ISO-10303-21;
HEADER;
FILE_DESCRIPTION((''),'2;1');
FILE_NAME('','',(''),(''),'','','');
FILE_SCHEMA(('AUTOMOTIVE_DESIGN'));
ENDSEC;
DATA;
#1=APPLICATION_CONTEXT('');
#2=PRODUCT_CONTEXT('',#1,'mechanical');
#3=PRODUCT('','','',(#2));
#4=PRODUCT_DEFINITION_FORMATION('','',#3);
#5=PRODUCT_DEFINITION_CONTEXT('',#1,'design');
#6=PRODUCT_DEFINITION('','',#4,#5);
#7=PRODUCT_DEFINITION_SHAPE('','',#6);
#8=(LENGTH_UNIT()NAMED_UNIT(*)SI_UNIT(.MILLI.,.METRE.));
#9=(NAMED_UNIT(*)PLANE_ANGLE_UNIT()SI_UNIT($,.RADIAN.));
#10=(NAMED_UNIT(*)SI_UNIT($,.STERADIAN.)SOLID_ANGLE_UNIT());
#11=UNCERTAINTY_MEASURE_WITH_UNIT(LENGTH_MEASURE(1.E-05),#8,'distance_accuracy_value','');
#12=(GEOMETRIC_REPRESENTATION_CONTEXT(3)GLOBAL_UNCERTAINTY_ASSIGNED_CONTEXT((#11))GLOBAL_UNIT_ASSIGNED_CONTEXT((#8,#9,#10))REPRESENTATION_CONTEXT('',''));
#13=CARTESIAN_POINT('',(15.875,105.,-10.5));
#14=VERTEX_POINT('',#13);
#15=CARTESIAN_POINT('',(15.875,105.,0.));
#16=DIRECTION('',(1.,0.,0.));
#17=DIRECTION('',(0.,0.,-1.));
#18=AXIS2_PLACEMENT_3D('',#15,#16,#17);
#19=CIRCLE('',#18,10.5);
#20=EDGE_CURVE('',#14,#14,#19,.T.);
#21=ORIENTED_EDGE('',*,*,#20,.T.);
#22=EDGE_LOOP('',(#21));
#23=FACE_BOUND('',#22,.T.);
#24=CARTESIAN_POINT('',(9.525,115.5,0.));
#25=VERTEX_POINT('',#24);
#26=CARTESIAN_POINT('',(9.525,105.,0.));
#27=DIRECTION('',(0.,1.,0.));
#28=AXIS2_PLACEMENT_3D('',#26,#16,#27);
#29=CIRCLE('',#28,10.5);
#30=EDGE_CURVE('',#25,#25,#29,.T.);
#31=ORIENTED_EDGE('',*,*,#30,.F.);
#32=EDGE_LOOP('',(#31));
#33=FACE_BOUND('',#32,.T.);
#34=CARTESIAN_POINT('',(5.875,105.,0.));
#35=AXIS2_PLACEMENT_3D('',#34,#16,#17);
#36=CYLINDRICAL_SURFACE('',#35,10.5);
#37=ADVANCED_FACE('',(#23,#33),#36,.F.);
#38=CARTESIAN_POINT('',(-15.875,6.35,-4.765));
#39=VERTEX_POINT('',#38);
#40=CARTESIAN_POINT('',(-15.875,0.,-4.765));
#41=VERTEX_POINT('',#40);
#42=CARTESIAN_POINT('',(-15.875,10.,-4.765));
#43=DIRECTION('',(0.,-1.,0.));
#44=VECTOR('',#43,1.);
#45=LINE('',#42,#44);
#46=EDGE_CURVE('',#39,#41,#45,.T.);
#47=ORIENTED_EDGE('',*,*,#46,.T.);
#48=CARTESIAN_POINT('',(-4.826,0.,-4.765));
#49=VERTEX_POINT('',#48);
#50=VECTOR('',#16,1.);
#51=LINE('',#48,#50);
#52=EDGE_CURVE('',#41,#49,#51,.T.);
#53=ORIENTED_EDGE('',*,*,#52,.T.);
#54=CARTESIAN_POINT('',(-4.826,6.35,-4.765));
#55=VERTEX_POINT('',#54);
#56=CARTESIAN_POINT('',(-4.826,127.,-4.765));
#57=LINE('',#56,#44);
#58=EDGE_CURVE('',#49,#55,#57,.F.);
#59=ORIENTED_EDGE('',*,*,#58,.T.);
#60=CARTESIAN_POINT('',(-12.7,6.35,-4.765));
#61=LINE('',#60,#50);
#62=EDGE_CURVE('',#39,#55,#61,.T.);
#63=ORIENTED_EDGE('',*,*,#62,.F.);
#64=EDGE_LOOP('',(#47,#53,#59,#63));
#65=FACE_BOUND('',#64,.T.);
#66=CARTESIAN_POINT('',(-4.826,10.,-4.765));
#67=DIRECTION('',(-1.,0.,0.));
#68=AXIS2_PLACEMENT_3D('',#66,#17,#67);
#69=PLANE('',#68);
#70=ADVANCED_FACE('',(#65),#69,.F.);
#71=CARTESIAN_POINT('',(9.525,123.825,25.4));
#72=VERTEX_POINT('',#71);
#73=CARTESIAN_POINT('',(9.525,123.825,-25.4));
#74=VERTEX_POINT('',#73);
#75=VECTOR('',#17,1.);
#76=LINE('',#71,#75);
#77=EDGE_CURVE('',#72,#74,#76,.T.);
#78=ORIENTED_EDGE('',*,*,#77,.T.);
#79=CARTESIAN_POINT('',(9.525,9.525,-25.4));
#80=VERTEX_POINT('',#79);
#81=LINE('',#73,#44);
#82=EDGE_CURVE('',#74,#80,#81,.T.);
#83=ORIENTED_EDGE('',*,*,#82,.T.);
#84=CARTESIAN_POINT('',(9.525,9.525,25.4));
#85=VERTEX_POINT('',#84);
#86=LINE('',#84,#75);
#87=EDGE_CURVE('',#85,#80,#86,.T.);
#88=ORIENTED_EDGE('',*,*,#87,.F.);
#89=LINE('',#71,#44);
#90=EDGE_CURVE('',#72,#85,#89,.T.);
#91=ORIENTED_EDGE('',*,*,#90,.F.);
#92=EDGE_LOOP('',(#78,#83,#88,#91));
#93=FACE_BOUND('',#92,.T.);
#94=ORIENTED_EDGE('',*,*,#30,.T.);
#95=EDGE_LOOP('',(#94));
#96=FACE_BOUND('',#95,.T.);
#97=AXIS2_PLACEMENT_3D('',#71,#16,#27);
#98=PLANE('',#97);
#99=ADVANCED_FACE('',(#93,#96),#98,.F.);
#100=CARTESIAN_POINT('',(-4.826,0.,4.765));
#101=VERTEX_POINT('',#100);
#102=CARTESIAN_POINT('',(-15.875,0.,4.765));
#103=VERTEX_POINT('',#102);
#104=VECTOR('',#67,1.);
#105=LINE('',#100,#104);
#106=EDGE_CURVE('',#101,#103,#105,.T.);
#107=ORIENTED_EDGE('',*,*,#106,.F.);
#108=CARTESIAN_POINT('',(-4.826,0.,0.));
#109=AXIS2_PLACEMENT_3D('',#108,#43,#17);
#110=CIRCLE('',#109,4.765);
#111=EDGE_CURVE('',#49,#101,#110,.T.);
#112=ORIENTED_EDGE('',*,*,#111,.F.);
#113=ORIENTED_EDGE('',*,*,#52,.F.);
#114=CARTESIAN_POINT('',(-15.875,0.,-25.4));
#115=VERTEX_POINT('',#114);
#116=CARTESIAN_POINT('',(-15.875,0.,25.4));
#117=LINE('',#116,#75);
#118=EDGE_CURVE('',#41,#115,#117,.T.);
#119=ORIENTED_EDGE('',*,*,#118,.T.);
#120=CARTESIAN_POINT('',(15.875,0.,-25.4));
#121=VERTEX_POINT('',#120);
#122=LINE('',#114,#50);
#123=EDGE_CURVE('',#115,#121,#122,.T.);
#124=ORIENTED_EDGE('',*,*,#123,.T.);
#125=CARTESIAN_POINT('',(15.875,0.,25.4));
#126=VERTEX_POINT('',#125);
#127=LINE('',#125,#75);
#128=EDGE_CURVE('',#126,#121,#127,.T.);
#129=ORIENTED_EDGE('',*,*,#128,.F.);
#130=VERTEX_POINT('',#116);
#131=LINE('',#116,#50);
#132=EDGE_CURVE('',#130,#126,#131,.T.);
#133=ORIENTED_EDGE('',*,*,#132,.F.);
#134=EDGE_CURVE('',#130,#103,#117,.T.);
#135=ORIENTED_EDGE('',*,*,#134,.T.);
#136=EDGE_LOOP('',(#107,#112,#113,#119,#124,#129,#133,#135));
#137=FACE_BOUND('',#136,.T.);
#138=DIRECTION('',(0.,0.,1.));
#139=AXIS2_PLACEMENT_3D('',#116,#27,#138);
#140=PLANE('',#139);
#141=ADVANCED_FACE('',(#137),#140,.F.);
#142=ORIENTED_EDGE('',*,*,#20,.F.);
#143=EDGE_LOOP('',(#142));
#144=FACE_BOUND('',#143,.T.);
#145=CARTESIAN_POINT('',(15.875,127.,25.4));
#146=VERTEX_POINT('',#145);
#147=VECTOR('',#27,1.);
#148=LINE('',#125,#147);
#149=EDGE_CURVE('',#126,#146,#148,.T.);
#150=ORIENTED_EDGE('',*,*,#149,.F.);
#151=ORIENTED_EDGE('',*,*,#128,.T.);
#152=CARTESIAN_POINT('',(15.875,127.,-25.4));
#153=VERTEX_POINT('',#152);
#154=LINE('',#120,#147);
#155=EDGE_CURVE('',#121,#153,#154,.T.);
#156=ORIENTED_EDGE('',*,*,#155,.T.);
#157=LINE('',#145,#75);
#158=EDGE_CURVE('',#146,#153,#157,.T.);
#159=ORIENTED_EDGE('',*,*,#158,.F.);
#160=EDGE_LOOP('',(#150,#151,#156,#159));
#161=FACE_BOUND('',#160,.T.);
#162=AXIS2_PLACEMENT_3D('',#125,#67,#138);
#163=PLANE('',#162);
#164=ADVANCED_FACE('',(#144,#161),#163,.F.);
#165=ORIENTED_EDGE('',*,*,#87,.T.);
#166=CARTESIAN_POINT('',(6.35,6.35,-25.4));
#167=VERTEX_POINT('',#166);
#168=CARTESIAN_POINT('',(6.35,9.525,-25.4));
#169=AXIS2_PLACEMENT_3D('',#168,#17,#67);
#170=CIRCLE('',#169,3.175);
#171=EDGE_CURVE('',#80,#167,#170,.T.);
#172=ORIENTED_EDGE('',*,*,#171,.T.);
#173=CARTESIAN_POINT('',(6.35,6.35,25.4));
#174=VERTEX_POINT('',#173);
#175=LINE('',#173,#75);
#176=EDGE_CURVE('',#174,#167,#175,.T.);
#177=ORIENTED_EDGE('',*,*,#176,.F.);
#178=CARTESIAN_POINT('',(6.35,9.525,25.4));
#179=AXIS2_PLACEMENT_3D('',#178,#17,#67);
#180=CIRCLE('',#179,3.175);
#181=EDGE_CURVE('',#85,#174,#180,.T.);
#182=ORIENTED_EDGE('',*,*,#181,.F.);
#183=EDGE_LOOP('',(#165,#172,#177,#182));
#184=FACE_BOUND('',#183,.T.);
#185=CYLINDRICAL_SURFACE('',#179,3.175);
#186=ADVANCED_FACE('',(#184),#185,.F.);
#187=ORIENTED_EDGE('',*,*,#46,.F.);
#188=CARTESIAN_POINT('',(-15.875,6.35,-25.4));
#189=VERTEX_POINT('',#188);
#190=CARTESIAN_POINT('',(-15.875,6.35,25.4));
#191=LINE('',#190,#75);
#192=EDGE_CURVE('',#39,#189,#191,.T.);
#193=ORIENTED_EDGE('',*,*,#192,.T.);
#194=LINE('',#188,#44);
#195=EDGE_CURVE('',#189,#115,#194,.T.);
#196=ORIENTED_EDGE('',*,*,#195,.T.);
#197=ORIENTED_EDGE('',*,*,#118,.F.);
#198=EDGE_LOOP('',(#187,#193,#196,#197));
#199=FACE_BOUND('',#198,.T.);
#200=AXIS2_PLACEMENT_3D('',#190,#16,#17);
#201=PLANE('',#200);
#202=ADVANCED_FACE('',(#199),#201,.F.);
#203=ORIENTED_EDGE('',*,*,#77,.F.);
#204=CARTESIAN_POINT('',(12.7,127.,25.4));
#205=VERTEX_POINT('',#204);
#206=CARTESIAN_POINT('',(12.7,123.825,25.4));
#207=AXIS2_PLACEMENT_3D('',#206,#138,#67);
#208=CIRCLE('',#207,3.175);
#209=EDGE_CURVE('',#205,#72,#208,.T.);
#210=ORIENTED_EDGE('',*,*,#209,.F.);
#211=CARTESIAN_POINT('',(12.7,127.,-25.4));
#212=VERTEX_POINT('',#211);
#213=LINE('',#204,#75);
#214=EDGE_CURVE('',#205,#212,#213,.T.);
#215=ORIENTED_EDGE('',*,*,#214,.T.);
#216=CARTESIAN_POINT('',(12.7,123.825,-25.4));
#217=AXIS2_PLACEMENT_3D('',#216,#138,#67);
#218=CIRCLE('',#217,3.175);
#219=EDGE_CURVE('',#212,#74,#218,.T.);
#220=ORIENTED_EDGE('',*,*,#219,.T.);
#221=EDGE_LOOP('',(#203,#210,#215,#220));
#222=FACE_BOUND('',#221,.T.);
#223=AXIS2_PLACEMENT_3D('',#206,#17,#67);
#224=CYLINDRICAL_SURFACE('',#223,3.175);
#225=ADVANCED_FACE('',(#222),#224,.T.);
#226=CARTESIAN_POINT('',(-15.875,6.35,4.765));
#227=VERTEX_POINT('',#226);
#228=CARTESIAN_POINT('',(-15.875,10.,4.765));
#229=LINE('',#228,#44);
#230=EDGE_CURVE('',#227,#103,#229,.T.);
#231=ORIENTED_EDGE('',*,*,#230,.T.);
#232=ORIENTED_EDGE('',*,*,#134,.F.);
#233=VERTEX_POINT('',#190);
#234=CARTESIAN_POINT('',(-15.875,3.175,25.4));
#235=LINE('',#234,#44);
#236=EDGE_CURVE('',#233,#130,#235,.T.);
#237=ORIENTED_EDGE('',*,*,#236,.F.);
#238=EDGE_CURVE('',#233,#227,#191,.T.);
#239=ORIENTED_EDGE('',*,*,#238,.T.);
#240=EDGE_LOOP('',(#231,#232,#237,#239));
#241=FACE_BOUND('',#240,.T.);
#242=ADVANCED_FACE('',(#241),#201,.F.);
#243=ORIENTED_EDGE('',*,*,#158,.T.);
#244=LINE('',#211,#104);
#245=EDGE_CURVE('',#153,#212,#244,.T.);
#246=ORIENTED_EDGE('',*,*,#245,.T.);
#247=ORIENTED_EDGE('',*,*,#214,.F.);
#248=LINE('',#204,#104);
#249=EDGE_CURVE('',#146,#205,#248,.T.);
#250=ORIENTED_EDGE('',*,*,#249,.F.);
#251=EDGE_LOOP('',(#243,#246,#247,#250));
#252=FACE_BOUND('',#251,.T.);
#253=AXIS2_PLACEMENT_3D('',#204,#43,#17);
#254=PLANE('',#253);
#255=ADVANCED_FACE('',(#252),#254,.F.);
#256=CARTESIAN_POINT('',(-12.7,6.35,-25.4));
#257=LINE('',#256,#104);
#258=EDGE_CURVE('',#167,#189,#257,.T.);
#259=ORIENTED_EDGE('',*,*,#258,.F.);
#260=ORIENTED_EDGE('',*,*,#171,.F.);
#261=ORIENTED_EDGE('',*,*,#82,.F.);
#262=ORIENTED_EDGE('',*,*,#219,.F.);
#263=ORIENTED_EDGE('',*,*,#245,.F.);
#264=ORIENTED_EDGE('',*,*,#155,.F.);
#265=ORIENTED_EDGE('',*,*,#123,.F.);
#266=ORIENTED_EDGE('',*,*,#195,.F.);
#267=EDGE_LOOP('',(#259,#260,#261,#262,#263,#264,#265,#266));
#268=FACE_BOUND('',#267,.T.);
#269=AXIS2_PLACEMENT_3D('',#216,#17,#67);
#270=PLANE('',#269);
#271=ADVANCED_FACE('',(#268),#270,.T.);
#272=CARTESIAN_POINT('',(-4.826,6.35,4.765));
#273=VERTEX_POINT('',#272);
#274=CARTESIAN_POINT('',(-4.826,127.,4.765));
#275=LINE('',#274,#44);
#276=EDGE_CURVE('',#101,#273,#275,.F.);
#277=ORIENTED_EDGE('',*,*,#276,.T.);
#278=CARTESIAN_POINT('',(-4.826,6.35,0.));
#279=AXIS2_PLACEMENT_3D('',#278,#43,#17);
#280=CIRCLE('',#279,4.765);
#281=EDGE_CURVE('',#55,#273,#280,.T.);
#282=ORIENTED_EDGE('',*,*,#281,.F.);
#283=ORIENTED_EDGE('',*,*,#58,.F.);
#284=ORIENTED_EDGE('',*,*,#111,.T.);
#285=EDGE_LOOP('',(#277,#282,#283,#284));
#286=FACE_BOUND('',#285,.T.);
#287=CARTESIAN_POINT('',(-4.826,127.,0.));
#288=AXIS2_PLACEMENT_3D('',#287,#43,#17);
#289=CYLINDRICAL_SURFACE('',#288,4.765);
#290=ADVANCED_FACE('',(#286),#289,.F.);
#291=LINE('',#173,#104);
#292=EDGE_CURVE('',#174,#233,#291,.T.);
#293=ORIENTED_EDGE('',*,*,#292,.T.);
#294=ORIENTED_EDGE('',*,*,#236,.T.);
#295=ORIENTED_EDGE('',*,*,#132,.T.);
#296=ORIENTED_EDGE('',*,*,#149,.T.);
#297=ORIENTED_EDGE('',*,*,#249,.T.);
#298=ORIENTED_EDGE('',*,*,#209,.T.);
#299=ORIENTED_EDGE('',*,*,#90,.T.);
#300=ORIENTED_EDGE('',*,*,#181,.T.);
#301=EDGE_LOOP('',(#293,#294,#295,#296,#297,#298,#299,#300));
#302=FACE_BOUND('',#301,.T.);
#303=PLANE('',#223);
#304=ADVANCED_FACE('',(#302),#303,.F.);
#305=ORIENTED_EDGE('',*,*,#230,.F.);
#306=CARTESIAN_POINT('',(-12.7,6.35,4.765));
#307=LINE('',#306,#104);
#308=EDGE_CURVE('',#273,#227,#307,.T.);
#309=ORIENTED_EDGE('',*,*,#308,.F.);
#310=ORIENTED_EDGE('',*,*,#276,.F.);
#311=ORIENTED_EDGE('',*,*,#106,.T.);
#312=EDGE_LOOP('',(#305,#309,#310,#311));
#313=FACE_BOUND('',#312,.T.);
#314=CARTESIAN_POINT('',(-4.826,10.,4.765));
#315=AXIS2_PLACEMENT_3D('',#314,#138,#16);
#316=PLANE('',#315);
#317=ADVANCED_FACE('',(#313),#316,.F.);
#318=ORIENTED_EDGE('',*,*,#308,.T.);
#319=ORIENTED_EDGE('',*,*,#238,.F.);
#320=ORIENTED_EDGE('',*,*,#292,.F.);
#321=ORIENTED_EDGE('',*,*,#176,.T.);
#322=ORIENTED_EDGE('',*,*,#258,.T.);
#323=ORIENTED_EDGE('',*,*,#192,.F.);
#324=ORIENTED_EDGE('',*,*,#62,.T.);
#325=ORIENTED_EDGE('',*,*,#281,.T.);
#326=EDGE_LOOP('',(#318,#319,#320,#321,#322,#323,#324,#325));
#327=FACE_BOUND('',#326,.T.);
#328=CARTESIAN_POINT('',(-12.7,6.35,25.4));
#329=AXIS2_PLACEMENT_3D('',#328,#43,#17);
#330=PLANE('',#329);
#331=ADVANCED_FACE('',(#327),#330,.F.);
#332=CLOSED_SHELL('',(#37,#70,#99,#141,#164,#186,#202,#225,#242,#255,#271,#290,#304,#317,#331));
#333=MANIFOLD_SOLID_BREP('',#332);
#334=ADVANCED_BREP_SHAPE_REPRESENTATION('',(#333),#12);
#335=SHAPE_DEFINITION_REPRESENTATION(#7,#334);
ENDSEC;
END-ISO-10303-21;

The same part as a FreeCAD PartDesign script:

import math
import FreeCAD as App
import Part
import Sketcher
Q = App.Units.Quantity


def add_polygon(sketch, points):
    """Adds a closed chain of lines whose ends are joined by coincident constraints."""
    first, n = sketch.GeometryCount, len(points)
    for a, b in zip(points, points[1:] + points[:1]):
        sketch.addGeometry(Part.LineSegment(App.Vector(*a, 0), App.Vector(*b, 0)), False)
    for i in range(n):
        sketch.addConstraint(Sketcher.Constraint("Coincident", first + i, 2, first + (i + 1) % n, 1))

doc = App.newDocument("Part")
params = doc.addObject("Spreadsheet::Sheet", "Params")
for row, (alias, value) in enumerate([
    ("sketch1_height", "5 in"),
    ("sketch1_height2", "4.5 in"),
    ("sketch1_radius", "0.125 in"),
    ("sketch1_width", "1.25 in"),
    ("pad1_length", "2 in"),
    ("pocket2_length", "10 mm"),
    ("sketch4_width", "0.435 in"),
    ("pocket3_length", "10 mm"),
], start=1):
    params.set(f"A{row}", alias)
    params.set(f"B{row}", "=" + value)
    params.setAlias(f"B{row}", alias)

body = doc.addObject("PartDesign::Body", "Body")

# Sketch on XY plane
sketch1 = body.newObject("Sketcher::SketchObject", "Sketch")
sketch1.AttachmentSupport = (doc.getObject("XY_Plane"), [""])
sketch1.MapMode = "FlatFace"
sketch1.addGeometry([
    Part.LineSegment(App.Vector(-15.875, 0, 0), App.Vector(15.875, 0, 0)),  # 0
    Part.LineSegment(App.Vector(15.875, 0, 0), App.Vector(15.875, 127, 0)),  # 1
    Part.LineSegment(App.Vector(15.875, 127, 0), App.Vector(12.7, 127, 0)),  # 2
    Part.ArcOfCircle(Part.Circle(App.Vector(12.7, 123.825, 0), App.Vector(0, 0, 1), 3.175), math.radians(90), math.radians(180)),  # 3
    Part.LineSegment(App.Vector(9.525, 123.825, 0), App.Vector(9.525, 9.525, 0)),  # 4
    Part.ArcOfCircle(Part.Circle(App.Vector(6.35, 9.525, 0), App.Vector(0, 0, 1), 3.175), math.radians(-90), math.radians(0)),  # 5
    Part.LineSegment(App.Vector(6.35, 6.35, 0), App.Vector(-15.875, 6.35, 0)),  # 6
    Part.LineSegment(App.Vector(-15.875, 6.35, 0), App.Vector(-15.875, 0, 0)),  # 7
], False)
sketch1.addConstraint([
    Sketcher.Constraint("Coincident", 0, 2, 1, 1),
    Sketcher.Constraint("Coincident", 1, 2, 2, 1),
    Sketcher.Constraint("Tangent", 2, 2, 3, 1),
    Sketcher.Constraint("Tangent", 3, 2, 4, 1),
    Sketcher.Constraint("Tangent", 4, 2, 5, 2),
    Sketcher.Constraint("Tangent", 5, 1, 6, 1),
    Sketcher.Constraint("Coincident", 6, 2, 7, 1),
    Sketcher.Constraint("Coincident", 7, 2, 0, 1),
    Sketcher.Constraint("Horizontal", 0),
    Sketcher.Constraint("Vertical", 1),
    Sketcher.Constraint("Horizontal", 2),
    Sketcher.Constraint("Vertical", 4),
    Sketcher.Constraint("Horizontal", 6),
    Sketcher.Constraint("Vertical", 7),
    Sketcher.Constraint("Equal", 3, 5),
    Sketcher.Constraint("Symmetric", 0, 2, 7, 2, -1, 1),
    Sketcher.Constraint("DistanceY", 1, 1, 1, 2, Q("5 in")),
    Sketcher.Constraint("DistanceY", 4, 2, 4, 1, Q("4.5 in")),
    Sketcher.Constraint("Radius", 3, Q("0.125 in")),
    Sketcher.Constraint("DistanceX", 6, 2, 4, 2, Q("1 in")),
    Sketcher.Constraint("DistanceX", 0, 1, 0, 2, Q("1.25 in")),
])
sketch1.setExpression("Constraints[16]", "Params.sketch1_height")
sketch1.setExpression("Constraints[17]", "Params.sketch1_height2")
sketch1.setExpression("Constraints[18]", "Params.sketch1_radius")
sketch1.setExpression("Constraints[20]", "Params.sketch1_width")
pad1 = body.newObject("PartDesign::Pad", "Pad")
pad1.Profile = sketch1
pad1.setExpression("Length", "Params.pad1_length")
pad1.Midplane = True

# Sketch on XZ plane
sketch2 = body.newObject("Sketcher::SketchObject", "Sketch001")
sketch2.AttachmentSupport = (doc.getObject("XZ_Plane"), [""])
sketch2.MapMode = "FlatFace"
sketch2.addGeometry(Part.Circle(App.Vector(-4.826, 0, 0), App.Vector(0, 0, 1), 4.765), False)
sketch2.addConstraint([
    Sketcher.Constraint("PointOnObject", 0, 3, -1),
    Sketcher.Constraint("Diameter", 0, Q("9.53 mm")),
    Sketcher.Constraint("DistanceX", 0, 3, -1, 1, Q("0.19 in")),
])
pocket1 = body.newObject("PartDesign::Pocket", "Pocket")
pocket1.Profile = sketch2
pocket1.Type = "ThroughAll"

# Sketch on YZ plane
sketch3 = body.newObject("Sketcher::SketchObject", "Sketch002")
sketch3.AttachmentSupport = (doc.getObject("YZ_Plane"), [""])
sketch3.MapMode = "FlatFace"
sketch3.AttachmentOffset = App.Placement(App.Vector(0, 0, 0.625 * 25.4), App.Rotation())
sketch3.addGeometry(Part.Circle(App.Vector(105, 0, 0), App.Vector(0, 0, 1), 10.5), False)
sketch3.addConstraint([
    Sketcher.Constraint("PointOnObject", 0, 3, -1),
    Sketcher.Constraint("Diameter", 0, Q("21 mm")),
    Sketcher.Constraint("DistanceX", -1, 1, 0, 3, Q("105 mm")),
])
pocket2 = body.newObject("PartDesign::Pocket", "Pocket001")
pocket2.Profile = sketch3
pocket2.setExpression("Length", "Params.pocket2_length")

# Sketch on XZ plane
sketch4 = body.newObject("Sketcher::SketchObject", "Sketch003")
sketch4.AttachmentSupport = (doc.getObject("XZ_Plane"), [""])
sketch4.MapMode = "FlatFace"
add_polygon(sketch4, [(-15.875, 4.765), (-15.875, -4.765), (-4.826, -4.765), (-4.826, 4.765)])  # lines 0-3
sketch4.addConstraint([
    Sketcher.Constraint("Vertical", 0),
    Sketcher.Constraint("Horizontal", 1),
    Sketcher.Constraint("Vertical", 2),
    Sketcher.Constraint("Horizontal", 3),
    Sketcher.Constraint("DistanceX", 1, 1, 1, 2, Q("0.435 in")),
    Sketcher.Constraint("DistanceX", 1, 2, -1, 1, Q("0.19 in")),
    Sketcher.Constraint("DistanceY", 0, 2, 0, 1, Q("9.53 mm")),
    Sketcher.Constraint("DistanceY", 0, 2, -1, 1, Q("4.765 mm")),
])
sketch4.setExpression("Constraints[8]", "Params.sketch4_width")
pocket3 = body.newObject("PartDesign::Pocket", "Pocket002")
pocket3.Profile = sketch4
pocket3.setExpression("Length", "Params.pocket3_length")

doc.recompute()
